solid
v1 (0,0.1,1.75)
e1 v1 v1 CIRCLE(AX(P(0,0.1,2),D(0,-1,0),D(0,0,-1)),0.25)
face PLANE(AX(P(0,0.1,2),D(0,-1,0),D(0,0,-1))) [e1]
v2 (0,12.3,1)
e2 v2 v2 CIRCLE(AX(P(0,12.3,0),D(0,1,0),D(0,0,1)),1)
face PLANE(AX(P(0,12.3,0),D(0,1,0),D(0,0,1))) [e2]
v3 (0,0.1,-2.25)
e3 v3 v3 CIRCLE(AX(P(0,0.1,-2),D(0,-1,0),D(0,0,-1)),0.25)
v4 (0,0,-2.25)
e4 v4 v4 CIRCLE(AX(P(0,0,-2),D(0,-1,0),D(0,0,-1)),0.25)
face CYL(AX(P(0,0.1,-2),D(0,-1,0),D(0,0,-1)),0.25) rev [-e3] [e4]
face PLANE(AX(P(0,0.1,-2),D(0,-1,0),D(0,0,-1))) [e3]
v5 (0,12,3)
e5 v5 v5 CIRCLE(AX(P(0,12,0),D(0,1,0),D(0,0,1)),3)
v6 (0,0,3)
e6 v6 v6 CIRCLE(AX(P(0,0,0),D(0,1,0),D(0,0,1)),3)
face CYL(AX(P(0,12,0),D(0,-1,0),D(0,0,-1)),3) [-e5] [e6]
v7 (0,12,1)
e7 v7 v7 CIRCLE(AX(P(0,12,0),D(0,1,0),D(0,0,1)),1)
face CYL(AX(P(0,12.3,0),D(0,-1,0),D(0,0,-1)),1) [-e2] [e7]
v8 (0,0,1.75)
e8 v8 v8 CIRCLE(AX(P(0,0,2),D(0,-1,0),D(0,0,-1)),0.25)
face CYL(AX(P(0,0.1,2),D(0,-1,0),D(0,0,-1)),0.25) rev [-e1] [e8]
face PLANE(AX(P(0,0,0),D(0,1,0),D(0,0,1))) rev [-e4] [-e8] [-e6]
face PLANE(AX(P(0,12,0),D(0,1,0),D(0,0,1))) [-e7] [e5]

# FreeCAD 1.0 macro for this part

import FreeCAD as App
import Part
import Sketcher

V = App.Vector

doc = App.newDocument("Part")
params = doc.addObject("Spreadsheet::Sheet", "Params")
for row, (alias, value) in enumerate([
    ("sketch1_diameter", "6 mm"),
    ("pad1_length", "12 mm"),
    ("sketch2_diameter", "2 mm"),
    ("pad2_length", "0.3 mm"),
    ("sketch3_diameter", "0.5 mm"),
    ("pocket1_length", "0.1 mm"),
], start=1):
    params.set(f"A{row}", alias)
    params.set(f"B{row}", "=" + value)
    params.setAlias(f"B{row}", alias)

body = doc.addObject("PartDesign::Body", "Body")

# Sketch on XZ plane
sketch1 = doc.addObject("Sketcher::SketchObject", "Sketch")
body.addObject(sketch1)
sketch1.AttachmentSupport = (doc.XZ_Plane, [""])
sketch1.MapMode = "FlatFace"
sketch1.addGeometry(Part.Circle(V(0, 0, 0), V(0, 0, 1), 3), False)
sketch1.addConstraint([
    Sketcher.Constraint("Coincident", 0, 3, -1, 1),
    Sketcher.Constraint("Diameter", 0, 6.0),
])
sketch1.setExpression("Constraints[1]", "Params.sketch1_diameter")
pad1 = doc.addObject("PartDesign::Pad", "Pad")
body.addObject(pad1)
pad1.Profile = sketch1
pad1.setExpression("Length", "Params.pad1_length")
pad1.Reversed = True

# Sketch on XZ plane
sketch2 = doc.addObject("Sketcher::SketchObject", "Sketch001")
body.addObject(sketch2)
sketch2.AttachmentSupport = (doc.XZ_Plane, [""])
sketch2.MapMode = "FlatFace"
sketch2.AttachmentOffset = App.Placement(V(0, 0, -12), App.Rotation())
sketch2.addGeometry(Part.Circle(V(0, 0, 0), V(0, 0, 1), 1), False)
sketch2.addConstraint([
    Sketcher.Constraint("Coincident", 0, 3, -1, 1),
    Sketcher.Constraint("Diameter", 0, 2.0),
])
sketch2.setExpression("Constraints[1]", "Params.sketch2_diameter")
pad2 = doc.addObject("PartDesign::Pad", "Pad001")
body.addObject(pad2)
pad2.Profile = sketch2
pad2.setExpression("Length", "Params.pad2_length")
pad2.Reversed = True

# Sketch on XZ plane
sketch3 = doc.addObject("Sketcher::SketchObject", "Sketch002")
body.addObject(sketch3)
sketch3.AttachmentSupport = (doc.XZ_Plane, [""])
sketch3.MapMode = "FlatFace"
sketch3.addGeometry([
    Part.Circle(V(0, -2, 0), V(0, 0, 1), 0.25),
    Part.Circle(V(0, 2, 0), V(0, 0, 1), 0.25),
], False)
sketch3.addConstraint([
    Sketcher.Constraint("Equal", 0, 1),
    Sketcher.Constraint("Symmetric", 0, 3, 1, 3, -1, 1),
    Sketcher.Constraint("PointOnObject", 0, 3, -2),
    Sketcher.Constraint("Diameter", 0, 0.5),
    Sketcher.Constraint("DistanceY", 0, 3, -1, 1, 2.0),
])
sketch3.setExpression("Constraints[3]", "Params.sketch3_diameter")
pocket1 = doc.addObject("PartDesign::Pocket", "Pocket")
body.addObject(pocket1)
pocket1.Profile = sketch3
pocket1.setExpression("Length", "Params.pocket1_length")

doc.recompute()
